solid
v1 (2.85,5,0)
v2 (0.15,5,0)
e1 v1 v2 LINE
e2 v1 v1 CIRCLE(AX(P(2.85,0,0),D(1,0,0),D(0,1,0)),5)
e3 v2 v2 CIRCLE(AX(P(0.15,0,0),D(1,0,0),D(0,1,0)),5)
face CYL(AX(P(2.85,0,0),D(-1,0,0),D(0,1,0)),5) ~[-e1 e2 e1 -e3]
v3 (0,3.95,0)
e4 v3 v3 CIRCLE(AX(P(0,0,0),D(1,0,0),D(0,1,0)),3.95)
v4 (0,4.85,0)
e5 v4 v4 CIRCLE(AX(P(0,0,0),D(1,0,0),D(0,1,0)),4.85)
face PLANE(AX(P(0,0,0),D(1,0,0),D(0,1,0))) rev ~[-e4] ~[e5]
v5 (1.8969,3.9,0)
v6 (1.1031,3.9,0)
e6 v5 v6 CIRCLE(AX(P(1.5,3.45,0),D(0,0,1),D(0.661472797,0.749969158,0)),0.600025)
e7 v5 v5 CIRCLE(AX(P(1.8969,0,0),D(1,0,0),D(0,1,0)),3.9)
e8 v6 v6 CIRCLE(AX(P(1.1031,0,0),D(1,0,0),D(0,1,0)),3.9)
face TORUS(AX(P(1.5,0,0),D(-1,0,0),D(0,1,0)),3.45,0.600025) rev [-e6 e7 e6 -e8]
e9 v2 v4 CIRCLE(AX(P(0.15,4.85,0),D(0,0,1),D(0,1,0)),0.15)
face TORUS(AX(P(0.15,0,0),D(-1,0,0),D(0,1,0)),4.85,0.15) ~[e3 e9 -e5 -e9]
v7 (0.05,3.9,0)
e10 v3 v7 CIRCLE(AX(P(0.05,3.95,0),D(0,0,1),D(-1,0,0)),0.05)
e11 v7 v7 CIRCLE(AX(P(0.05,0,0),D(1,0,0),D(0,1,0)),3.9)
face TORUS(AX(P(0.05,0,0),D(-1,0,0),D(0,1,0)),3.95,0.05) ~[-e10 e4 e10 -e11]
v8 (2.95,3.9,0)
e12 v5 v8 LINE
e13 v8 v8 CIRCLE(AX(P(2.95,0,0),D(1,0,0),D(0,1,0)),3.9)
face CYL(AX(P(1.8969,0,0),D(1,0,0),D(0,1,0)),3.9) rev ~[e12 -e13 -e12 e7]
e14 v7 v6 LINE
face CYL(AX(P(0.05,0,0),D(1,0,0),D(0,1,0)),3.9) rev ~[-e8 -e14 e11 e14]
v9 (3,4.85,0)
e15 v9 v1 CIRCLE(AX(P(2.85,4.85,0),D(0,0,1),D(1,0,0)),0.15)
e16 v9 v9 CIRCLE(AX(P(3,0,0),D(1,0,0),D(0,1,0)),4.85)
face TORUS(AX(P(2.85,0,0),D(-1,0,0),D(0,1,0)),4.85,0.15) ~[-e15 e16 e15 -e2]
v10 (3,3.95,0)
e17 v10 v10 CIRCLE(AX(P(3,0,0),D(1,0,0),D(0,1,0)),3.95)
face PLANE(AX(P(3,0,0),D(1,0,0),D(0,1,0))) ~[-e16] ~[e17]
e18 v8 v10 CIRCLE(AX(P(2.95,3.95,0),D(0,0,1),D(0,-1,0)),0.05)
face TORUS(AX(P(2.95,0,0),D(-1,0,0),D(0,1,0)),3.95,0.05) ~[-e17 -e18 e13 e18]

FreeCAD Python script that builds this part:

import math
import FreeCAD as App
import Part
import Sketcher

doc = App.newDocument("Part")
params = doc.addObject("Spreadsheet::Sheet", "Params")
for row, (alias, value) in enumerate([
    ("sketch1_radius", "0.6 mm"),
    ("sketch1_radius2", "0.05 mm"),
    ("sketch1_radius3", "0.15 mm"),
    ("sketch1_width", "2.7 mm"),
    ("sketch1_height", "0.9 mm"),
    ("revolution_angle", "360 deg"),
], start=1):
    params.set(f"A{row}", alias)
    params.set(f"B{row}", "=" + value)
    params.setAlias(f"B{row}", alias)

body = doc.addObject("PartDesign::Body", "Body")

# Sketch on XY plane
sketch1 = doc.addObject("Sketcher::SketchObject", "Sketch")
body.addObject(sketch1)
sketch1.AttachmentSupport = (doc.XY_Plane, [""])
sketch1.MapMode = "FlatFace"
sketch1.addGeometry(Part.LineSegment(App.Vector(0, 4.85, 0), App.Vector(0, 3.95, 0)), False)
sketch1.addGeometry(Part.ArcOfCircle(Part.Circle(App.Vector(0.05, 3.95, 0), App.Vector(0, 0, 1), 0.05), math.radians(180), math.radians(270)), False)
sketch1.addGeometry(Part.LineSegment(App.Vector(0.05, 3.9, 0), App.Vector(1.1, 3.9, 0)), False)
sketch1.addGeometry(Part.ArcOfCircle(Part.Circle(App.Vector(1.5, 3.45, 0), App.Vector(0, 0, 1), 0.6), math.radians(49), math.radians(131)), False)
sketch1.addGeometry(Part.LineSegment(App.Vector(1.9, 3.9, 0), App.Vector(2.95, 3.9, 0)), False)
sketch1.addGeometry(Part.ArcOfCircle(Part.Circle(App.Vector(2.95, 3.95, 0), App.Vector(0, 0, 1), 0.05), math.radians(-90), math.radians(0)), False)
sketch1.addGeometry(Part.LineSegment(App.Vector(3, 3.95, 0), App.Vector(3, 4.85, 0)), False)
sketch1.addGeometry(Part.ArcOfCircle(Part.Circle(App.Vector(2.85, 4.85, 0), App.Vector(0, 0, 1), 0.15), math.radians(0), math.radians(90)), False)
sketch1.addGeometry(Part.LineSegment(App.Vector(2.85, 5, 0), App.Vector(0.15, 5, 0)), False)
sketch1.addGeometry(Part.ArcOfCircle(Part.Circle(App.Vector(0.15, 4.85, 0), App.Vector(0, 0, 1), 0.15), math.radians(90), math.radians(180)), False)
sketch1.addConstraint(Sketcher.Constraint("Tangent", 0, 2, 1, 1))
sketch1.addConstraint(Sketcher.Constraint("Tangent", 1, 2, 2, 1))
sketch1.addConstraint(Sketcher.Constraint("Coincident", 2, 2, 3, 2))
sketch1.addConstraint(Sketcher.Constraint("Coincident", 3, 1, 4, 1))
sketch1.addConstraint(Sketcher.Constraint("Tangent", 4, 2, 5, 1))
sketch1.addConstraint(Sketcher.Constraint("Tangent", 5, 2, 6, 1))
sketch1.addConstraint(Sketcher.Constraint("Tangent", 6, 2, 7, 1))
sketch1.addConstraint(Sketcher.Constraint("Tangent", 7, 2, 8, 1))
sketch1.addConstraint(Sketcher.Constraint("Tangent", 8, 2, 9, 1))
sketch1.addConstraint(Sketcher.Constraint("Tangent", 9, 2, 0, 1))
sketch1.addConstraint(Sketcher.Constraint("Vertical", 0))
sketch1.addConstraint(Sketcher.Constraint("Horizontal", 2))
sketch1.addConstraint(Sketcher.Constraint("Horizontal", 4))
sketch1.addConstraint(Sketcher.Constraint("Vertical", 6))
sketch1.addConstraint(Sketcher.Constraint("Horizontal", 8))
sketch1.addConstraint(Sketcher.Constraint("Equal", 1, 5))
sketch1.addConstraint(Sketcher.Constraint("Equal", 7, 9))
sketch1.addConstraint(Sketcher.Constraint("PointOnObject", 0, 2, -2))
sketch1.addConstraint(Sketcher.Constraint("Horizontal", 1, 3, 5, 3))
sketch1.addConstraint(Sketcher.Constraint("Equal", 2, 4))
sketch1.addConstraint(Sketcher.Constraint("Radius", 3, 0.6))
sketch1.addConstraint(Sketcher.Constraint("Radius", 1, 0.05))
sketch1.addConstraint(Sketcher.Constraint("Radius", 7, 0.15))
sketch1.addConstraint(Sketcher.Constraint("DistanceX", 8, 2, 8, 1, 2.7))
sketch1.addConstraint(Sketcher.Constraint("DistanceY", 0, 2, 0, 1, 0.9))
sketch1.addConstraint(Sketcher.Constraint("DistanceY", -1, 1, 7, 2, 5.0))
sketch1.addConstraint(Sketcher.Constraint("DistanceY", 3, 3, 1, 3, 0.5))
sketch1.setExpression("Constraints[20]", "Params.sketch1_radius")
sketch1.setExpression("Constraints[21]", "Params.sketch1_radius2")
sketch1.setExpression("Constraints[22]", "Params.sketch1_radius3")
sketch1.setExpression("Constraints[23]", "Params.sketch1_width")
sketch1.setExpression("Constraints[24]", "Params.sketch1_height")
revolution = doc.addObject("PartDesign::Revolution", "Revolution")
body.addObject(revolution)
revolution.Profile = sketch1
revolution.ReferenceAxis = (sketch1, ["H_Axis"])
revolution.setExpression("Angle", "Params.revolution_angle")

doc.recompute()
